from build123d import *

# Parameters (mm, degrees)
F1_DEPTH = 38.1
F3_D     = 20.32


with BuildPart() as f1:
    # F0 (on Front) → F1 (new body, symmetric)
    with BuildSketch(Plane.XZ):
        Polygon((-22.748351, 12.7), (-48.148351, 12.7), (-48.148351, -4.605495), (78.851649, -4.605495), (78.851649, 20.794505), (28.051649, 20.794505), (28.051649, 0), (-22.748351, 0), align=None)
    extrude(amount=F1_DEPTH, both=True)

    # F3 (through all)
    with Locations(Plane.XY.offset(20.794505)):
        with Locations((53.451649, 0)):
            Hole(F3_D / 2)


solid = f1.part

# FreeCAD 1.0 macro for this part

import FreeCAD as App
import Part
import Sketcher
Q = App.Units.Quantity

doc = App.newDocument("Part")
body = doc.addObject("PartDesign::Body", "Body")

sketch1 = doc.addObject("Sketcher::SketchObject", "Sketch")
body.addObject(sketch1)
sketch1.AttachmentSupport = (doc.XZ_Plane, [""])
sketch1.MapMode = "FlatFace"
sketch1.addGeometry([
    Part.LineSegment(App.Vector(-22.748351, 12.7, 0), App.Vector(-48.148351, 12.7, 0)),
    Part.LineSegment(App.Vector(-48.148351, 12.7, 0), App.Vector(-48.148351, -4.605495, 0)),
    Part.LineSegment(App.Vector(-48.148351, -4.605495, 0), App.Vector(78.851649, -4.605495, 0)),
    Part.LineSegment(App.Vector(78.851649, -4.605495, 0), App.Vector(78.851649, 20.794505, 0)),
    Part.LineSegment(App.Vector(78.851649, 20.794505, 0), App.Vector(28.051649, 20.794505, 0)),
    Part.LineSegment(App.Vector(28.051649, 20.794505, 0), App.Vector(28.051649, 0, 0)),
    Part.LineSegment(App.Vector(28.051649, 0, 0), App.Vector(-22.748351, 0, 0)),
    Part.LineSegment(App.Vector(-22.748351, 0, 0), App.Vector(-22.748351, 12.7, 0)),
], False)
sketch1.addConstraint([
    Sketcher.Constraint("Coincident", 0, 2, 1, 1),
    Sketcher.Constraint("Coincident", 1, 2, 2, 1),
    Sketcher.Constraint("Coincident", 2, 2, 3, 1),
    Sketcher.Constraint("Coincident", 3, 2, 4, 1),
    Sketcher.Constraint("Coincident", 4, 2, 5, 1),
    Sketcher.Constraint("Coincident", 5, 2, 6, 1),
    Sketcher.Constraint("Coincident", 6, 2, 7, 1),
    Sketcher.Constraint("Coincident", 7, 2, 0, 1),
    Sketcher.Constraint("Horizontal", 0),
    Sketcher.Constraint("Vertical", 1),
    Sketcher.Constraint("Horizontal", 2),
    Sketcher.Constraint("Vertical", 3),
    Sketcher.Constraint("Horizontal", 4),
    Sketcher.Constraint("Vertical", 5),
    Sketcher.Constraint("Horizontal", 6),
    Sketcher.Constraint("Vertical", 7),
    Sketcher.Constraint("PointOnObject", 5, 2, -1),
    Sketcher.Constraint("Equal", 4, 6),
    Sketcher.Constraint("Equal", 0, 3),
    Sketcher.Constraint("DistanceX", 0, 2, 0, 1, Q("1 in")),
    Sketcher.Constraint("DistanceX", 2, 1, 2, 2, Q("5 in")),
    Sketcher.Constraint("DistanceY", 7, 1, 7, 2, Q("0.5 in")),
    Sketcher.Constraint("DistanceY", 1, 2, 1, 1, 17.305495),
    Sketcher.Constraint("DistanceX", 0, 2, -1, 1, 48.148351),
])
pad1 = doc.addObject("PartDesign::Pad", "Pad")
body.addObject(pad1)
pad1.Profile = sketch1
pad1.Length = Q("3 in")
pad1.Midplane = True

sketch2 = doc.addObject("Sketcher::SketchObject", "Sketch001")
body.addObject(sketch2)
sketch2.AttachmentSupport = (doc.XY_Plane, [""])
sketch2.MapMode = "FlatFace"
sketch2.AttachmentOffset = App.Placement(App.Vector(0, 0, 20.794505), App.Rotation())
sketch2.addGeometry(Part.Circle(App.Vector(53.451649, 0, 0), App.Vector(0, 0, 1), 10.16), False)
sketch2.addConstraint([
    Sketcher.Constraint("PointOnObject", 0, 3, -1),
    Sketcher.Constraint("Diameter", 0, Q("0.8 in")),
    Sketcher.Constraint("DistanceX", -1, 1, 0, 3, 53.451649),
])
doc.recompute()
hole = doc.addObject("PartDesign::Hole", "Hole")
body.addObject(hole)
hole.Profile = sketch2
hole.ThreadType = "None"
hole.Diameter = Q("0.8 in")
hole.DepthType = "ThroughAll"

doc.recompute()
